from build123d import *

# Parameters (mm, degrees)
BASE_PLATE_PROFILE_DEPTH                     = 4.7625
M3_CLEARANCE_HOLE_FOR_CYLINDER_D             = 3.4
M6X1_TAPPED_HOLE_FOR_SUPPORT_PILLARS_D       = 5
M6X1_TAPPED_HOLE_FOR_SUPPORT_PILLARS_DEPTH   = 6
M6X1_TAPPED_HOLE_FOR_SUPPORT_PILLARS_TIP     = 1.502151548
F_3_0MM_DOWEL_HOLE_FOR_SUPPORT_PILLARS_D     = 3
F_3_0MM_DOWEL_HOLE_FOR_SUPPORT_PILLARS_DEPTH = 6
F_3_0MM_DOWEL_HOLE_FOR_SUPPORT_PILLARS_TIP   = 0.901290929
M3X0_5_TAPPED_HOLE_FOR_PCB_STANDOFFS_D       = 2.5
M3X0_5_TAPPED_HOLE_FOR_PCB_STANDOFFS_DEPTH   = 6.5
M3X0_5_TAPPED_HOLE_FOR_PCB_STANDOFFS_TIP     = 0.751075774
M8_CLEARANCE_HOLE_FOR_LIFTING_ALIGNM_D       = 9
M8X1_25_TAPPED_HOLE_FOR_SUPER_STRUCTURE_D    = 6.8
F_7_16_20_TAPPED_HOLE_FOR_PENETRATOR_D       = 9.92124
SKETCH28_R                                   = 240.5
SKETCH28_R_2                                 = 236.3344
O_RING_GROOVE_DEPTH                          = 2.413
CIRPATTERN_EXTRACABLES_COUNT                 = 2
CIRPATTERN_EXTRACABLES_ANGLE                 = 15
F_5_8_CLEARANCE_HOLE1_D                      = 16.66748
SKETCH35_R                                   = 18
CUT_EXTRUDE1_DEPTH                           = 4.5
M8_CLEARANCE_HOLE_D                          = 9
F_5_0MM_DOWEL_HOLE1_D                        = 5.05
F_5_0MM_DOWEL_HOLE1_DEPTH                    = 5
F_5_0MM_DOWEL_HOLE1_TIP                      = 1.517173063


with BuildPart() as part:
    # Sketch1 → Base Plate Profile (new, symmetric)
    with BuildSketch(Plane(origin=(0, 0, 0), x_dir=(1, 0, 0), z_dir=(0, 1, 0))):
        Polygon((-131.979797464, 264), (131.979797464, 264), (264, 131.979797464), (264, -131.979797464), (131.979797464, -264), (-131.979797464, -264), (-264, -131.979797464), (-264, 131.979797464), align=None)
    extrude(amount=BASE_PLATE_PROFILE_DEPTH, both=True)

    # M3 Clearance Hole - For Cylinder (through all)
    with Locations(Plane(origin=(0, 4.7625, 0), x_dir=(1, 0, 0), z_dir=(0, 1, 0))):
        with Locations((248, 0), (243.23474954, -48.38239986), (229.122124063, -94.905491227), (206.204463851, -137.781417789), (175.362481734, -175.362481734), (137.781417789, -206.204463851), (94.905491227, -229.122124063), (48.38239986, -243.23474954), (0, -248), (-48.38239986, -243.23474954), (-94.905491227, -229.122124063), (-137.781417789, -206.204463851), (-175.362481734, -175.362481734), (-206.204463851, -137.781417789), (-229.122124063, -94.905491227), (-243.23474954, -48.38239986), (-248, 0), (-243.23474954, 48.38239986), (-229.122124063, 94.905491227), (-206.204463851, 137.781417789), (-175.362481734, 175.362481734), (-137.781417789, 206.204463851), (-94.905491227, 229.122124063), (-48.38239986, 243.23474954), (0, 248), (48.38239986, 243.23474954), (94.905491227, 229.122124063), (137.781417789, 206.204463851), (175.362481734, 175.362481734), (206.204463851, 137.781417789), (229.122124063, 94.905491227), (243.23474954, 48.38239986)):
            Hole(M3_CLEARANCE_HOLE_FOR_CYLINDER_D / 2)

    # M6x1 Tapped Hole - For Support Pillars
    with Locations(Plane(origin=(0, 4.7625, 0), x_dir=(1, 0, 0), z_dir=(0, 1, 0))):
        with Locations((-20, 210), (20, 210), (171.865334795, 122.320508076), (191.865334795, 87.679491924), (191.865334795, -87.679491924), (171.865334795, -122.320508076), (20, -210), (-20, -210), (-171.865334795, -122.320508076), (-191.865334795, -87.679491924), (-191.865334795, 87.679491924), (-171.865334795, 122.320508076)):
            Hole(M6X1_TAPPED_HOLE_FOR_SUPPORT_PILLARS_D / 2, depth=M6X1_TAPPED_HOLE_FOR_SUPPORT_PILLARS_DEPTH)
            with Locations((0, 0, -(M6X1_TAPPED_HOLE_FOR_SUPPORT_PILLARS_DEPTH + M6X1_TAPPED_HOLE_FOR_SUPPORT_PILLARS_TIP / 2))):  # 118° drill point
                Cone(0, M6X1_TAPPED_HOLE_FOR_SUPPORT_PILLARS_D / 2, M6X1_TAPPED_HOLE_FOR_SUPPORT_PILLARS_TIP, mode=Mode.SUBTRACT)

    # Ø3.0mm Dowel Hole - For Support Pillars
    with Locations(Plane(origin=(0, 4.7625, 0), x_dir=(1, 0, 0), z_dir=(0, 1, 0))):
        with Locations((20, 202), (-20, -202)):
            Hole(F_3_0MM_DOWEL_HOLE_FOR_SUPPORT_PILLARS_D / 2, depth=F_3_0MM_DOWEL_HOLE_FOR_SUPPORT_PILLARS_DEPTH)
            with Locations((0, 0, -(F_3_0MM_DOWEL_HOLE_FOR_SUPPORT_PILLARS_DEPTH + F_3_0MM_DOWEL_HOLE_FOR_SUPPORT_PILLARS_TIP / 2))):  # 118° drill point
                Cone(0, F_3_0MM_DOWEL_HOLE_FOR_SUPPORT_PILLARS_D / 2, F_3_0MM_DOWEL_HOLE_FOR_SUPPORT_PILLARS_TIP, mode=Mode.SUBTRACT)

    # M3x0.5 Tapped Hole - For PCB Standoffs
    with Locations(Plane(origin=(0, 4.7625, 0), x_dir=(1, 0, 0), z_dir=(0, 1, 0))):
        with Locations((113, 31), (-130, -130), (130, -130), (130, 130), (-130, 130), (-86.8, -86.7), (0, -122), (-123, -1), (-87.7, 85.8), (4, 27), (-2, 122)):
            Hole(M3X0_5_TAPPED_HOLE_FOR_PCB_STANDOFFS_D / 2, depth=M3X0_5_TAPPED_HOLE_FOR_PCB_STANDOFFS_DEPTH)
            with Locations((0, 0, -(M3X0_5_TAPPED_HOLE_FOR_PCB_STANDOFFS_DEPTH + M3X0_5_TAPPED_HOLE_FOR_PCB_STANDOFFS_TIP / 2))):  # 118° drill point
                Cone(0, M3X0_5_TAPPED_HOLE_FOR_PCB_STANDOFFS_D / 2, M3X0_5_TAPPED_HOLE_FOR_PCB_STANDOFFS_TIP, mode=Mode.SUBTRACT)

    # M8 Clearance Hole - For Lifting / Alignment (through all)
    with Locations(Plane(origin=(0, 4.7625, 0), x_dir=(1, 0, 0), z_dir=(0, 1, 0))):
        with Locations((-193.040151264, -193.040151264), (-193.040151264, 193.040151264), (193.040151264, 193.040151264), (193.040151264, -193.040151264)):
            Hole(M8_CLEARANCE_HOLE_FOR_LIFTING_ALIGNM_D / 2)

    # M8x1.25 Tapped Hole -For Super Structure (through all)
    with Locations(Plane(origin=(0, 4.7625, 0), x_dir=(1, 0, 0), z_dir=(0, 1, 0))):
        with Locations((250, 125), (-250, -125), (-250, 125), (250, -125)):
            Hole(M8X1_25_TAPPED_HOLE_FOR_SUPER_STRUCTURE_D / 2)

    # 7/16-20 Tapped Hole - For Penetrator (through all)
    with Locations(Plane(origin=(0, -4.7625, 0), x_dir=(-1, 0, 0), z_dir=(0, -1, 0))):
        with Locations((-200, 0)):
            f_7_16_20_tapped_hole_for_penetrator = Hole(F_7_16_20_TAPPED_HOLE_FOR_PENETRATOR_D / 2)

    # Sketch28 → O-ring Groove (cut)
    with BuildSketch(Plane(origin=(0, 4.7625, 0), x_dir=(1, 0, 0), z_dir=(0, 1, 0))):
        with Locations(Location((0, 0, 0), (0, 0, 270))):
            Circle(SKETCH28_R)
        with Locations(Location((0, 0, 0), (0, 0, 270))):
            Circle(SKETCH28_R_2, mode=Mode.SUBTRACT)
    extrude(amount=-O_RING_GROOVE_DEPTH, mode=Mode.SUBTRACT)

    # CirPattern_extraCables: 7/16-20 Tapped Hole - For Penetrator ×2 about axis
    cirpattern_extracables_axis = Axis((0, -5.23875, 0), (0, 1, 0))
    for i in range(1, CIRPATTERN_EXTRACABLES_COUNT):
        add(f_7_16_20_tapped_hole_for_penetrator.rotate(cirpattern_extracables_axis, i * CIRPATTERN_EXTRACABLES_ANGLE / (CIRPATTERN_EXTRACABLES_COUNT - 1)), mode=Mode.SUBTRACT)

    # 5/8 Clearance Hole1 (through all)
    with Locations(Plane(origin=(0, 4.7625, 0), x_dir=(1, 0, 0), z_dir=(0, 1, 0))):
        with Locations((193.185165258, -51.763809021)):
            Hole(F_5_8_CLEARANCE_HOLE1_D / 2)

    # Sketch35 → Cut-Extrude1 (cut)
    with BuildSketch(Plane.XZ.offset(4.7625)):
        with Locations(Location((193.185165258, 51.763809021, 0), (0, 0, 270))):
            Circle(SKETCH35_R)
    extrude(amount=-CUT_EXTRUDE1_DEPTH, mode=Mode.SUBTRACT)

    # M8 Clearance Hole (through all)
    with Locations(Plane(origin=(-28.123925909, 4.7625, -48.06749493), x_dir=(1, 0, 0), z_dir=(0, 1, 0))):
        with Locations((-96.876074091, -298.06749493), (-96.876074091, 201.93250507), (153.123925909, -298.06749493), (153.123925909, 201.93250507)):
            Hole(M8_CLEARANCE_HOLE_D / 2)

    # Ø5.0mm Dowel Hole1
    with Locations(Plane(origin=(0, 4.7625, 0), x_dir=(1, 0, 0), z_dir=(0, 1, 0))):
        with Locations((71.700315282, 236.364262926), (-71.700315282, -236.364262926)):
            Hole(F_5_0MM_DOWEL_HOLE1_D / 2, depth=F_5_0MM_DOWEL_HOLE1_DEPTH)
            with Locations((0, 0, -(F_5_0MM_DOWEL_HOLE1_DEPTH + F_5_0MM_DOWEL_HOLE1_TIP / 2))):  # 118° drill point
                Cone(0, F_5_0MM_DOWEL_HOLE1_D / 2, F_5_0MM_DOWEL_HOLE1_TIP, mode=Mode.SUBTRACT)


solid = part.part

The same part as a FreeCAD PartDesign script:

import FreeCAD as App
import Part
import Sketcher

V = App.Vector

doc = App.newDocument("Part")
params = doc.addObject("Spreadsheet::Sheet", "Params")
for row, (alias, value) in enumerate([
    ("pad1_length", "9.525 mm"),
    ("sketch2_diameter", "3.4 mm"),
    ("hole_diameter", "3.4 mm"),
    ("sketch3_diameter", "5 mm"),
    ("hole2_diameter", "5 mm"),
    ("hole2_depth", "6 mm"),
    ("sketch4_diameter", "3 mm"),
    ("hole3_diameter", "3 mm"),
    ("hole3_depth", "6 mm"),
    ("sketch5_diameter", "2.5 mm"),
    ("hole4_diameter", "2.5 mm"),
    ("hole4_depth", "6.5 mm"),
    ("sketch6_diameter", "9 mm"),
    ("hole5_diameter", "9 mm"),
    ("sketch7_diameter", "6.8 mm"),
    ("hole6_diameter", "6.8 mm"),
    ("hole7_diameter", "9.92124 mm"),
    ("sketch9_diameter", "481 mm"),
    ("pocket1_length", "2.413 mm"),
    ("hole8_diameter", "16.66748 mm"),
    ("sketch11_diameter", "36 mm"),
    ("pocket2_length", "4.5 mm"),
    ("sketch12_diameter", "9 mm"),
    ("hole9_diameter", "9 mm"),
    ("sketch13_diameter", "5.05 mm"),
    ("hole10_diameter", "5.05 mm"),
    ("hole10_depth", "5 mm"),
], start=1):
    params.set(f"A{row}", alias)
    params.set(f"B{row}", "=" + value)
    params.setAlias(f"B{row}", alias)

body = doc.addObject("PartDesign::Body", "Body")

# Sketch on XZ plane
sketch1 = body.newObject("Sketcher::SketchObject", "Sketch")
sketch1.AttachmentSupport = (doc.getObject("XZ_Plane"), [""])
sketch1.MapMode = "FlatFace"
sketch1.addGeometry([
    Part.LineSegment(V(131.979797, -264, 0), V(-131.979797, -264, 0)),  # 0
    Part.LineSegment(V(-131.979797, -264, 0), V(-264, -131.979797, 0)),  # 1
    Part.LineSegment(V(-264, -131.979797, 0), V(-264, 131.979797, 0)),  # 2
    Part.LineSegment(V(-264, 131.979797, 0), V(-131.979797, 264, 0)),  # 3
    Part.LineSegment(V(-131.979797, 264, 0), V(131.979797, 264, 0)),  # 4
    Part.LineSegment(V(131.979797, 264, 0), V(264, 131.979797, 0)),  # 5
    Part.LineSegment(V(264, 131.979797, 0), V(264, -131.979797, 0)),  # 6
    Part.LineSegment(V(264, -131.979797, 0), V(131.979797, -264, 0)),  # 7
], False)
sketch1.addConstraint([
    Sketcher.Constraint("Coincident", 0, 2, 1, 1),
    Sketcher.Constraint("Coincident", 1, 2, 2, 1),
    Sketcher.Constraint("Coincident", 2, 2, 3, 1),
    Sketcher.Constraint("Coincident", 3, 2, 4, 1),
    Sketcher.Constraint("Coincident", 4, 2, 5, 1),
    Sketcher.Constraint("Coincident", 5, 2, 6, 1),
    Sketcher.Constraint("Coincident", 6, 2, 7, 1),
    Sketcher.Constraint("Coincident", 7, 2, 0, 1),
    Sketcher.Constraint("Horizontal", 0),
    Sketcher.Constraint("Vertical", 2),
    Sketcher.Constraint("Horizontal", 4),
    Sketcher.Constraint("Vertical", 6),
    Sketcher.Constraint("Symmetric", 0, 2, 4, 2, -1, 1),
    Sketcher.Constraint("Symmetric", 1, 2, 5, 2, -1, 1),
    Sketcher.Constraint("Perpendicular", 1, 3),
    Sketcher.Constraint("Perpendicular", 5, 7),
    Sketcher.Constraint("Horizontal", 2, 2, 5, 2),
    Sketcher.Constraint("Horizontal", 1, 2, 6, 2),
    Sketcher.Constraint("Vertical", 0, 2, 3, 2),
    Sketcher.Constraint("Equal", 4, 2),
    Sketcher.Constraint("DistanceY", 0, 2, -1, 1, 264.0),
    Sketcher.Constraint("Distance", 1, 186.704761),
])
pad1 = body.newObject("PartDesign::Pad", "Pad")
pad1.Profile = sketch1
pad1.setExpression("Length", "Params.pad1_length")
pad1.Midplane = True

# Sketch on XZ plane
sketch2 = body.newObject("Sketcher::SketchObject", "Sketch001")
sketch2.AttachmentSupport = (doc.getObject("XZ_Plane"), [""])
sketch2.MapMode = "FlatFace"
sketch2.AttachmentOffset = App.Placement(V(0, 0, -4.7625), App.Rotation())
sketch2.addGeometry([
    Part.Circle(V(248, 0, 0), V(0, 0, 1), 1.7),  # 0
    Part.Circle(V(243.23475, 48.3824, 0), V(0, 0, 1), 1.7),  # 1
    Part.Circle(V(229.122124, 94.905491, 0), V(0, 0, 1), 1.7),  # 2
    Part.Circle(V(206.204464, 137.781418, 0), V(0, 0, 1), 1.7),  # 3
    Part.Circle(V(175.362482, 175.362482, 0), V(0, 0, 1), 1.7),  # 4
    Part.Circle(V(137.781418, 206.204464, 0), V(0, 0, 1), 1.7),  # 5
    Part.Circle(V(94.905491, 229.122124, 0), V(0, 0, 1), 1.7),  # 6
    Part.Circle(V(48.3824, 243.23475, 0), V(0, 0, 1), 1.7),  # 7
    Part.Circle(V(0, 248, 0), V(0, 0, 1), 1.7),  # 8
    Part.Circle(V(-48.3824, 243.23475, 0), V(0, 0, 1), 1.7),  # 9
    Part.Circle(V(-94.905491, 229.122124, 0), V(0, 0, 1), 1.7),  # 10
    Part.Circle(V(-137.781418, 206.204464, 0), V(0, 0, 1), 1.7),  # 11
    Part.Circle(V(-175.362482, 175.362482, 0), V(0, 0, 1), 1.7),  # 12
    Part.Circle(V(-206.204464, 137.781418, 0), V(0, 0, 1), 1.7),  # 13
    Part.Circle(V(-229.122124, 94.905491, 0), V(0, 0, 1), 1.7),  # 14
    Part.Circle(V(-243.23475, 48.3824, 0), V(0, 0, 1), 1.7),  # 15
    Part.Circle(V(-248, 0, 0), V(0, 0, 1), 1.7),  # 16
    Part.Circle(V(-243.23475, -48.3824, 0), V(0, 0, 1), 1.7),  # 17
    Part.Circle(V(-229.122124, -94.905491, 0), V(0, 0, 1), 1.7),  # 18
    Part.Circle(V(-206.204464, -137.781418, 0), V(0, 0, 1), 1.7),  # 19
    Part.Circle(V(-175.362482, -175.362482, 0), V(0, 0, 1), 1.7),  # 20
    Part.Circle(V(-137.781418, -206.204464, 0), V(0, 0, 1), 1.7),  # 21
    Part.Circle(V(-94.905491, -229.122124, 0), V(0, 0, 1), 1.7),  # 22
    Part.Circle(V(-48.3824, -243.23475, 0), V(0, 0, 1), 1.7),  # 23
    Part.Circle(V(0, -248, 0), V(0, 0, 1), 1.7),  # 24
    Part.Circle(V(48.3824, -243.23475, 0), V(0, 0, 1), 1.7),  # 25
    Part.Circle(V(94.905491, -229.122124, 0), V(0, 0, 1), 1.7),  # 26
    Part.Circle(V(137.781418, -206.204464, 0), V(0, 0, 1), 1.7),  # 27
    Part.Circle(V(175.362482, -175.362482, 0), V(0, 0, 1), 1.7),  # 28
    Part.Circle(V(206.204464, -137.781418, 0), V(0, 0, 1), 1.7),  # 29
    Part.Circle(V(229.122124, -94.905491, 0), V(0, 0, 1), 1.7),  # 30
    Part.Circle(V(243.23475, -48.3824, 0), V(0, 0, 1), 1.7),  # 31
], False)
sketch2.addConstraint([
    Sketcher.Constraint("Equal", 0, 1),
    Sketcher.Constraint("Equal", 1, 2),
    Sketcher.Constraint("Equal", 2, 3),
    Sketcher.Constraint("Equal", 3, 4),
    Sketcher.Constraint("Equal", 4, 5),
    Sketcher.Constraint("Equal", 5, 6),
    Sketcher.Constraint("Equal", 6, 7),
    Sketcher.Constraint("Equal", 7, 8),
    Sketcher.Constraint("Equal", 8, 9),
    Sketcher.Constraint("Equal", 9, 10),
    Sketcher.Constraint("Equal", 10, 11),
    Sketcher.Constraint("Equal", 11, 12),
    Sketcher.Constraint("Equal", 12, 13),
    Sketcher.Constraint("Equal", 13, 14),
    Sketcher.Constraint("Equal", 14, 15),
    Sketcher.Constraint("Equal", 15, 16),
    Sketcher.Constraint("Equal", 16, 17),
    Sketcher.Constraint("Equal", 17, 18),
    Sketcher.Constraint("Equal", 18, 19),
    Sketcher.Constraint("Equal", 19, 20),
    Sketcher.Constraint("Equal", 20, 21),
    Sketcher.Constraint("Equal", 21, 22),
    Sketcher.Constraint("Equal", 22, 23),
    Sketcher.Constraint("Equal", 23, 24),
    Sketcher.Constraint("Equal", 24, 25),
    Sketcher.Constraint("Equal", 25, 26),
    Sketcher.Constraint("Equal", 26, 27),
    Sketcher.Constraint("Equal", 27, 28),
    Sketcher.Constraint("Equal", 28, 29),
    Sketcher.Constraint("Equal", 29, 30),
    Sketcher.Constraint("Equal", 30, 31),
    Sketcher.Constraint("Symmetric", 0, 3, 16, 3, -1, 1),
    Sketcher.Constraint("Symmetric", 1, 3, 17, 3, -1, 1),
    Sketcher.Constraint("Symmetric", 2, 3, 18, 3, -1, 1),
    Sketcher.Constraint("Symmetric", 3, 3, 19, 3, -1, 1),
    Sketcher.Constraint("Symmetric", 4, 3, 20, 3, -1, 1),
    Sketcher.Constraint("Symmetric", 5, 3, 21, 3, -1, 1),
    Sketcher.Constraint("Symmetric", 6, 3, 22, 3, -1, 1),
    Sketcher.Constraint("Symmetric", 7, 3, 23, 3, -1, 1),
    Sketcher.Constraint("Symmetric", 8, 3, 24, 3, -1, 1),
    Sketcher.Constraint("Symmetric", 9, 3, 25, 3, -1, 1),
    Sketcher.Constraint("Symmetric", 10, 3, 26, 3, -1, 1),
    Sketcher.Constraint("Symmetric", 11, 3, 27, 3, -1, 1),
    Sketcher.Constraint("Symmetric", 12, 3, 28, 3, -1, 1),
    Sketcher.Constraint("Symmetric", 13, 3, 29, 3, -1, 1),
    Sketcher.Constraint("Symmetric", 14, 3, 30, 3, -1, 1),
    Sketcher.Constraint("Symmetric", 15, 3, 31, 3, -1, 1),
    Sketcher.Constraint("Symmetric", 7, 3, 9, 3, -2),
    Sketcher.Constraint("Symmetric", 6, 3, 10, 3, -2),
    Sketcher.Constraint("Symmetric", 5, 3, 11, 3, -2),
    Sketcher.Constraint("Symmetric", 4, 3, 12, 3, -2),
    Sketcher.Constraint("Symmetric", 3, 3, 13, 3, -2),
    Sketcher.Constraint("Symmetric", 2, 3, 14, 3, -2),
    Sketcher.Constraint("Symmetric", 1, 3, 15, 3, -2),
    Sketcher.Constraint("PointOnObject", 0, 3, -1),
    Sketcher.Constraint("PointOnObject", 8, 3, -2),
    Sketcher.Constraint("Diameter", 0, 3.4),
    Sketcher.Constraint("DistanceX", -1, 1, 0, 3, 248.0),
    Sketcher.Constraint("DistanceY", -1, 1, 8, 3, 248.0),
    Sketcher.Constraint("DistanceY", -1, 1, 1, 3, 48.3824),
    Sketcher.Constraint("DistanceX", -1, 1, 7, 3, 48.3824),
    Sketcher.Constraint("DistanceX", -1, 1, 1, 3, 243.23475),
    Sketcher.Constraint("DistanceY", -1, 1, 2, 3, 94.905491),
    Sketcher.Constraint("DistanceX", -1, 1, 4, 3, 175.362482),
    Sketcher.Constraint("DistanceY", -1, 1, 4, 3, 175.362482),
    Sketcher.Constraint("DistanceX", -1, 1, 6, 3, 94.905491),
    Sketcher.Constraint("DistanceY", -1, 1, 7, 3, 243.23475),
    Sketcher.Constraint("DistanceX", 3, 3, 2, 3, 22.91766),
    Sketcher.Constraint("DistanceX", 5, 3, 1, 3, 105.453332),
    Sketcher.Constraint("DistanceY", 5, 3, 6, 3, 22.91766),
    Sketcher.Constraint("DistanceY", 3, 3, 7, 3, 105.453332),
    Sketcher.Constraint("DistanceX", -1, 1, 2, 3, 229.122124),
    Sketcher.Constraint("DistanceY", -1, 1, 5, 3, 206.204464),
])
sketch2.setExpression("Constraints[56]", "Params.sketch2_diameter")
doc.recompute()
hole = body.newObject("PartDesign::Hole", "Hole")
hole.Profile = sketch2
hole.ThreadType = "None"
hole.setExpression("Diameter", "Params.hole_diameter")
hole.DepthType = "ThroughAll"
hole.Reversed = True

# Sketch on XZ plane
sketch3 = body.newObject("Sketcher::SketchObject", "Sketch002")
sketch3.AttachmentSupport = (doc.getObject("XZ_Plane"), [""])
sketch3.MapMode = "FlatFace"
sketch3.AttachmentOffset = App.Placement(V(0, 0, -4.7625), App.Rotation())
sketch3.addGeometry([
    Part.Circle(V(-20, -210, 0), V(0, 0, 1), 2.5),  # 0
    Part.Circle(V(20, -210, 0), V(0, 0, 1), 2.5),  # 1
    Part.Circle(V(171.865335, -122.320508, 0), V(0, 0, 1), 2.5),  # 2
    Part.Circle(V(191.865335, -87.679492, 0), V(0, 0, 1), 2.5),  # 3
    Part.Circle(V(191.865335, 87.679492, 0), V(0, 0, 1), 2.5),  # 4
    Part.Circle(V(171.865335, 122.320508, 0), V(0, 0, 1), 2.5),  # 5
    Part.Circle(V(20, 210, 0), V(0, 0, 1), 2.5),  # 6
    Part.Circle(V(-20, 210, 0), V(0, 0, 1), 2.5),  # 7
    Part.Circle(V(-171.865335, 122.320508, 0), V(0, 0, 1), 2.5),  # 8
    Part.Circle(V(-191.865335, 87.679492, 0), V(0, 0, 1), 2.5),  # 9
    Part.Circle(V(-191.865335, -87.679492, 0), V(0, 0, 1), 2.5),  # 10
    Part.Circle(V(-171.865335, -122.320508, 0), V(0, 0, 1), 2.5),  # 11
], False)
sketch3.addConstraint([
    Sketcher.Constraint("Equal", 0, 1),
    Sketcher.Constraint("Equal", 1, 2),
    Sketcher.Constraint("Equal", 2, 3),
    Sketcher.Constraint("Equal", 3, 4),
    Sketcher.Constraint("Equal", 4, 5),
    Sketcher.Constraint("Equal", 5, 6),
    Sketcher.Constraint("Equal", 6, 7),
    Sketcher.Constraint("Equal", 7, 8),
    Sketcher.Constraint("Equal", 8, 9),
    Sketcher.Constraint("Equal", 9, 10),
    Sketcher.Constraint("Equal", 10, 11),
    Sketcher.Constraint("Symmetric", 0, 3, 6, 3, -1, 1),
    Sketcher.Constraint("Symmetric", 1, 3, 7, 3, -1, 1),
    Sketcher.Constraint("Symmetric", 2, 3, 8, 3, -1, 1),
    Sketcher.Constraint("Symmetric", 3, 3, 9, 3, -1, 1),
    Sketcher.Constraint("Symmetric", 4, 3, 10, 3, -1, 1),
    Sketcher.Constraint("Symmetric", 5, 3, 11, 3, -1, 1),
    Sketcher.Constraint("Symmetric", 0, 3, 1, 3, -2),
    Sketcher.Constraint("Symmetric", 5, 3, 8, 3, -2),
    Sketcher.Constraint("Symmetric", 4, 3, 9, 3, -2),
    Sketcher.Constraint("Diameter", 0, 5.0),
    Sketcher.Constraint("DistanceX", 0, 3, -1, 1, 20.0),
    Sketcher.Constraint("DistanceY", 0, 3, -1, 1, 210.0),
    Sketcher.Constraint("DistanceX", 2, 3, 3, 3, 20.0),
    Sketcher.Constraint("DistanceY", 2, 3, 4, 3, 210.0),
    Sketcher.Constraint("DistanceY", 2, 3, -1, 1, 122.320508),
    Sketcher.Constraint("DistanceX", 8, 3, 5, 3, 343.73067),
])
sketch3.setExpression("Constraints[20]", "Params.sketch3_diameter")
doc.recompute()
hole2 = body.newObject("PartDesign::Hole", "Hole001")
hole2.Profile = sketch3
hole2.ThreadType = "None"
hole2.setExpression("Diameter", "Params.hole2_diameter")
hole2.DepthType = "Dimension"
hole2.setExpression("Depth", "Params.hole2_depth")
hole2.DrillPoint = "Angled"
hole2.DrillPointAngle = 118
hole2.Reversed = True

# Sketch on XZ plane
sketch4 = body.newObject("Sketcher::SketchObject", "Sketch003")
sketch4.AttachmentSupport = (doc.getObject("XZ_Plane"), [""])
sketch4.MapMode = "FlatFace"
sketch4.AttachmentOffset = App.Placement(V(0, 0, -4.7625), App.Rotation())
sketch4.addGeometry([
    Part.Circle(V(20, -202, 0), V(0, 0, 1), 1.5),
    Part.Circle(V(-20, 202, 0), V(0, 0, 1), 1.5),
], False)
sketch4.addConstraint([
    Sketcher.Constraint("Equal", 0, 1),
    Sketcher.Constraint("Symmetric", 0, 3, 1, 3, -1, 1),
    Sketcher.Constraint("Diameter", 0, 3.0),
    Sketcher.Constraint("DistanceX", -1, 1, 0, 3, 20.0),
    Sketcher.Constraint("DistanceY", 0, 3, -1, 1, 202.0),
])
sketch4.setExpression("Constraints[2]", "Params.sketch4_diameter")
doc.recompute()
hole3 = body.newObject("PartDesign::Hole", "Hole002")
hole3.Profile = sketch4
hole3.ThreadType = "None"
hole3.setExpression("Diameter", "Params.hole3_diameter")
hole3.DepthType = "Dimension"
hole3.setExpression("Depth", "Params.hole3_depth")
hole3.DrillPoint = "Angled"
hole3.DrillPointAngle = 118
hole3.Reversed = True

# Sketch on XZ plane
sketch5 = body.newObject("Sketcher::SketchObject", "Sketch004")
sketch5.AttachmentSupport = (doc.getObject("XZ_Plane"), [""])
sketch5.MapMode = "FlatFace"
sketch5.AttachmentOffset = App.Placement(V(0, 0, -4.7625), App.Rotation())
sketch5.addGeometry([
    Part.Circle(V(113, -31, 0), V(0, 0, 1), 1.25),  # 0
    Part.Circle(V(-130, 130, 0), V(0, 0, 1), 1.25),  # 1
    Part.Circle(V(130, 130, 0), V(0, 0, 1), 1.25),  # 2
    Part.Circle(V(130, -130, 0), V(0, 0, 1), 1.25),  # 3
    Part.Circle(V(-130, -130, 0), V(0, 0, 1), 1.25),  # 4
    Part.Circle(V(-86.8, 86.7, 0), V(0, 0, 1), 1.25),  # 5
    Part.Circle(V(0, 122, 0), V(0, 0, 1), 1.25),  # 6
    Part.Circle(V(-123, 1, 0), V(0, 0, 1), 1.25),  # 7
    Part.Circle(V(-87.7, -85.8, 0), V(0, 0, 1), 1.25),  # 8
    Part.Circle(V(4, -27, 0), V(0, 0, 1), 1.25),  # 9
    Part.Circle(V(-2, -122, 0), V(0, 0, 1), 1.25),  # 10
], False)
sketch5.addConstraint([
    Sketcher.Constraint("Equal", 0, 1),
    Sketcher.Constraint("Equal", 1, 2),
    Sketcher.Constraint("Equal", 2, 3),
    Sketcher.Constraint("Equal", 3, 4),
    Sketcher.Constraint("Equal", 4, 5),
    Sketcher.Constraint("Equal", 5, 6),
    Sketcher.Constraint("Equal", 6, 7),
    Sketcher.Constraint("Equal", 7, 8),
    Sketcher.Constraint("Equal", 8, 9),
    Sketcher.Constraint("Equal", 9, 10),
    Sketcher.Constraint("Symmetric", 1, 3, 3, 3, -1, 1),
    Sketcher.Constraint("Symmetric", 2, 3, 4, 3, -1, 1),
    Sketcher.Constraint("Symmetric", 1, 3, 2, 3, -2),
    Sketcher.Constraint("PointOnObject", 6, 3, -2),
    Sketcher.Constraint("Diameter", 0, 2.5),
    Sketcher.Constraint("DistanceX", -1, 1, 0, 3, 113.0),
    Sketcher.Constraint("DistanceY", 0, 3, -1, 1, 31.0),
    Sketcher.Constraint("DistanceX", 1, 3, -1, 1, 130.0),
    Sketcher.Constraint("DistanceY", -1, 1, 1, 3, 130.0),
    Sketcher.Constraint("DistanceY", -1, 1, 6, 3, 122.0),
    Sketcher.Constraint("DistanceX", 7, 3, -1, 1, 123.0),
    Sketcher.Constraint("DistanceY", -1, 1, 7, 3, 1.0),
    Sketcher.Constraint("DistanceX", -1, 1, 9, 3, 4.0),
    Sketcher.Constraint("DistanceY", 9, 3, -1, 1, 27.0),
    Sketcher.Constraint("DistanceX", 10, 3, -1, 1, 2.0),
    Sketcher.Constraint("DistanceY", 10, 3, -1, 1, 122.0),
    Sketcher.Constraint("DistanceX", 5, 3, -1, 1, 86.8),
    Sketcher.Constraint("DistanceY", -1, 1, 5, 3, 86.7),
    Sketcher.Constraint("DistanceX", 8, 3, -1, 1, 87.7),
    Sketcher.Constraint("DistanceY", 8, 3, -1, 1, 85.8),
])
sketch5.setExpression("Constraints[14]", "Params.sketch5_diameter")
doc.recompute()
hole4 = body.newObject("PartDesign::Hole", "Hole003")
hole4.Profile = sketch5
hole4.ThreadType = "None"
hole4.setExpression("Diameter", "Params.hole4_diameter")
hole4.DepthType = "Dimension"
hole4.setExpression("Depth", "Params.hole4_depth")
hole4.DrillPoint = "Angled"
hole4.DrillPointAngle = 118
hole4.Reversed = True

# Sketch on XZ plane
sketch6 = body.newObject("Sketcher::SketchObject", "Sketch005")
sketch6.AttachmentSupport = (doc.getObject("XZ_Plane"), [""])
sketch6.MapMode = "FlatFace"
sketch6.AttachmentOffset = App.Placement(V(0, 0, -4.7625), App.Rotation())
sketch6.addGeometry([
    Part.Circle(V(-193.040151, 193.040151, 0), V(0, 0, 1), 4.5),
    Part.Circle(V(-193.040151, -193.040151, 0), V(0, 0, 1), 4.5),
    Part.Circle(V(193.040151, -193.040151, 0), V(0, 0, 1), 4.5),
    Part.Circle(V(193.040151, 193.040151, 0), V(0, 0, 1), 4.5),
], False)
sketch6.addConstraint([
    Sketcher.Constraint("Equal", 0, 1),
    Sketcher.Constraint("Equal", 1, 2),
    Sketcher.Constraint("Equal", 2, 3),
    Sketcher.Constraint("Symmetric", 0, 3, 2, 3, -1, 1),
    Sketcher.Constraint("Symmetric", 1, 3, 3, 3, -1, 1),
    Sketcher.Constraint("Symmetric", 1, 3, 2, 3, -2),
    Sketcher.Constraint("Diameter", 0, 9.0),
    Sketcher.Constraint("DistanceX", 0, 3, -1, 1, 193.040151),
    Sketcher.Constraint("DistanceY", -1, 1, 0, 3, 193.040151),
])
sketch6.setExpression("Constraints[6]", "Params.sketch6_diameter")
doc.recompute()
hole5 = body.newObject("PartDesign::Hole", "Hole004")
hole5.Profile = sketch6
hole5.ThreadType = "None"
hole5.setExpression("Diameter", "Params.hole5_diameter")
hole5.DepthType = "ThroughAll"
hole5.Reversed = True

# Sketch on XZ plane
sketch7 = body.newObject("Sketcher::SketchObject", "Sketch006")
sketch7.AttachmentSupport = (doc.getObject("XZ_Plane"), [""])
sketch7.MapMode = "FlatFace"
sketch7.AttachmentOffset = App.Placement(V(0, 0, -4.7625), App.Rotation())
sketch7.addGeometry([
    Part.Circle(V(250, -125, 0), V(0, 0, 1), 3.4),
    Part.Circle(V(-250, 125, 0), V(0, 0, 1), 3.4),
    Part.Circle(V(-250, -125, 0), V(0, 0, 1), 3.4),
    Part.Circle(V(250, 125, 0), V(0, 0, 1), 3.4),
], False)
sketch7.addConstraint([
    Sketcher.Constraint("Equal", 0, 1),
    Sketcher.Constraint("Equal", 1, 2),
    Sketcher.Constraint("Equal", 2, 3),
    Sketcher.Constraint("Symmetric", 0, 3, 1, 3, -1, 1),
    Sketcher.Constraint("Symmetric", 2, 3, 3, 3, -1, 1),
    Sketcher.Constraint("Symmetric", 0, 3, 2, 3, -2),
    Sketcher.Constraint("Diameter", 0, 6.8),
    Sketcher.Constraint("DistanceX", -1, 1, 0, 3, 250.0),
    Sketcher.Constraint("DistanceY", 0, 3, -1, 1, 125.0),
])
sketch7.setExpression("Constraints[6]", "Params.sketch7_diameter")
doc.recompute()
hole6 = body.newObject("PartDesign::Hole", "Hole005")
hole6.Profile = sketch7
hole6.ThreadType = "None"
hole6.setExpression("Diameter", "Params.hole6_diameter")
hole6.DepthType = "ThroughAll"
hole6.Reversed = True

# Sketch on XZ plane
sketch8 = body.newObject("Sketcher::SketchObject", "Sketch007")
sketch8.AttachmentSupport = (doc.getObject("XZ_Plane"), [""])
sketch8.MapMode = "FlatFace"
sketch8.AttachmentOffset = App.Placement(V(0, 0, 4.7625), App.Rotation())
sketch8.addGeometry(Part.Circle(V(200, 0, 0), V(0, 0, 1), 4.96062), False)
sketch8.addConstraint([
    Sketcher.Constraint("PointOnObject", 0, 3, -1),
    Sketcher.Constraint("DistanceX", -1, 1, 0, 3, 200.0),
    Sketcher.Constraint("Diameter", 0, 9.92124),
])
doc.recompute()
hole7 = body.newObject("PartDesign::Hole", "Hole006")
hole7.Profile = sketch8
hole7.ThreadType = "None"
hole7.setExpression("Diameter", "Params.hole7_diameter")
hole7.DepthType = "ThroughAll"

# Sketch on XZ plane
sketch9 = body.newObject("Sketcher::SketchObject", "Sketch008")
sketch9.AttachmentSupport = (doc.getObject("XZ_Plane"), [""])
sketch9.MapMode = "FlatFace"
sketch9.AttachmentOffset = App.Placement(V(0, 0, -4.7625), App.Rotation())
sketch9.addGeometry([
    Part.Circle(V(0, 0, 0), V(0, 0, 1), 240.5),
    Part.Circle(V(0, 0, 0), V(0, 0, 1), 236.3344),
], False)
sketch9.addConstraint([
    Sketcher.Constraint("Coincident", 0, 3, -1, 1),
    Sketcher.Constraint("Coincident", 1, 3, -1, 1),
    Sketcher.Constraint("Diameter", 0, 481.0),
    Sketcher.Constraint("Diameter", 1, 472.6688),
])
sketch9.setExpression("Constraints[2]", "Params.sketch9_diameter")
pocket1 = body.newObject("PartDesign::Pocket", "Pocket")
pocket1.Profile = sketch9
pocket1.setExpression("Length", "Params.pocket1_length")
pocket1.Reversed = True
doc.recompute()

polarpattern = body.newObject("PartDesign::PolarPattern", "PolarPattern")
polarpattern.Originals = [hole7]
polarpattern.Axis = (doc.getObject("Y_Axis"), [""])
polarpattern.Angle = 15
polarpattern.Occurrences = 2
body.Tip = polarpattern

# Sketch on XZ plane
sketch10 = body.newObject("Sketcher::SketchObject", "Sketch009")
sketch10.AttachmentSupport = (doc.getObject("XZ_Plane"), [""])
sketch10.MapMode = "FlatFace"
sketch10.AttachmentOffset = App.Placement(V(0, 0, -4.7625), App.Rotation())
sketch10.addGeometry(Part.Circle(V(193.185165, 51.763809, 0), V(0, 0, 1), 8.33374), False)
sketch10.addConstraint([
    Sketcher.Constraint("Diameter", 0, 16.66748),
    Sketcher.Constraint("DistanceY", -1, 1, 0, 3, 51.763809),
    Sketcher.Constraint("DistanceX", -1, 1, 0, 3, 193.185165),
])
doc.recompute()
hole8 = body.newObject("PartDesign::Hole", "Hole007")
hole8.Profile = sketch10
hole8.ThreadType = "None"
hole8.setExpression("Diameter", "Params.hole8_diameter")
hole8.DepthType = "ThroughAll"
hole8.Reversed = True

# Sketch on XZ plane
sketch11 = body.newObject("Sketcher::SketchObject", "Sketch010")
sketch11.AttachmentSupport = (doc.getObject("XZ_Plane"), [""])
sketch11.MapMode = "FlatFace"
sketch11.AttachmentOffset = App.Placement(V(0, 0, 4.7625), App.Rotation())
sketch11.addGeometry(Part.Circle(V(193.185165, 51.763809, 0), V(0, 0, 1), 18), False)
sketch11.addConstraint([
    Sketcher.Constraint("Diameter", 0, 36.0),
    Sketcher.Constraint("DistanceY", -1, 1, 0, 3, 51.763809),
    Sketcher.Constraint("DistanceX", -1, 1, 0, 3, 193.185165),
])
sketch11.setExpression("Constraints[0]", "Params.sketch11_diameter")
pocket2 = body.newObject("PartDesign::Pocket", "Pocket001")
pocket2.Profile = sketch11
pocket2.setExpression("Length", "Params.pocket2_length")

# Sketch on XZ plane
sketch12 = body.newObject("Sketcher::SketchObject", "Sketch011")
sketch12.AttachmentSupport = (doc.getObject("XZ_Plane"), [""])
sketch12.MapMode = "FlatFace"
sketch12.AttachmentOffset = App.Placement(V(0, 0, -4.7625), App.Rotation())
sketch12.addGeometry([
    Part.Circle(V(-125, 250, 0), V(0, 0, 1), 4.5),
    Part.Circle(V(-125, -250, 0), V(0, 0, 1), 4.5),
    Part.Circle(V(125, 250, 0), V(0, 0, 1), 4.5),
    Part.Circle(V(125, -250, 0), V(0, 0, 1), 4.5),
], False)
sketch12.addConstraint([
    Sketcher.Constraint("Equal", 0, 1),
    Sketcher.Constraint("Equal", 1, 2),
    Sketcher.Constraint("Equal", 2, 3),
    Sketcher.Constraint("Symmetric", 1, 3, 2, 3, -1, 1),
    Sketcher.Constraint("Symmetric", 0, 3, 3, 3, -1, 1),
    Sketcher.Constraint("Symmetric", 0, 3, 2, 3, -2),
    Sketcher.Constraint("Diameter", 0, 9.0),
    Sketcher.Constraint("DistanceX", 0, 3, -1, 1, 125.0),
    Sketcher.Constraint("DistanceY", -1, 1, 0, 3, 250.0),
])
sketch12.setExpression("Constraints[6]", "Params.sketch12_diameter")
doc.recompute()
hole9 = body.newObject("PartDesign::Hole", "Hole008")
hole9.Profile = sketch12
hole9.ThreadType = "None"
hole9.setExpression("Diameter", "Params.hole9_diameter")
hole9.DepthType = "ThroughAll"
hole9.Reversed = True

# Sketch on XZ plane
sketch13 = body.newObject("Sketcher::SketchObject", "Sketch012")
sketch13.AttachmentSupport = (doc.getObject("XZ_Plane"), [""])
sketch13.MapMode = "FlatFace"
sketch13.AttachmentOffset = App.Placement(V(0, 0, -4.7625), App.Rotation())
sketch13.addGeometry([
    Part.Circle(V(71.700315, -236.364263, 0), V(0, 0, 1), 2.525),
    Part.Circle(V(-71.700315, 236.364263, 0), V(0, 0, 1), 2.525),
], False)
sketch13.addConstraint([
    Sketcher.Constraint("Equal", 0, 1),
    Sketcher.Constraint("Symmetric", 0, 3, 1, 3, -1, 1),
    Sketcher.Constraint("Diameter", 0, 5.05),
    Sketcher.Constraint("DistanceX", 1, 3, 0, 3, 143.400631),
    Sketcher.Constraint("DistanceY", 0, 3, -1, 1, 236.364263),
])
sketch13.setExpression("Constraints[2]", "Params.sketch13_diameter")
doc.recompute()
hole10 = body.newObject("PartDesign::Hole", "Hole009")
hole10.Profile = sketch13
hole10.ThreadType = "None"
hole10.setExpression("Diameter", "Params.hole10_diameter")
hole10.DepthType = "Dimension"
hole10.setExpression("Depth", "Params.hole10_depth")
hole10.DrillPoint = "Angled"
hole10.DrillPointAngle = 118
hole10.Reversed = True

doc.recompute()
